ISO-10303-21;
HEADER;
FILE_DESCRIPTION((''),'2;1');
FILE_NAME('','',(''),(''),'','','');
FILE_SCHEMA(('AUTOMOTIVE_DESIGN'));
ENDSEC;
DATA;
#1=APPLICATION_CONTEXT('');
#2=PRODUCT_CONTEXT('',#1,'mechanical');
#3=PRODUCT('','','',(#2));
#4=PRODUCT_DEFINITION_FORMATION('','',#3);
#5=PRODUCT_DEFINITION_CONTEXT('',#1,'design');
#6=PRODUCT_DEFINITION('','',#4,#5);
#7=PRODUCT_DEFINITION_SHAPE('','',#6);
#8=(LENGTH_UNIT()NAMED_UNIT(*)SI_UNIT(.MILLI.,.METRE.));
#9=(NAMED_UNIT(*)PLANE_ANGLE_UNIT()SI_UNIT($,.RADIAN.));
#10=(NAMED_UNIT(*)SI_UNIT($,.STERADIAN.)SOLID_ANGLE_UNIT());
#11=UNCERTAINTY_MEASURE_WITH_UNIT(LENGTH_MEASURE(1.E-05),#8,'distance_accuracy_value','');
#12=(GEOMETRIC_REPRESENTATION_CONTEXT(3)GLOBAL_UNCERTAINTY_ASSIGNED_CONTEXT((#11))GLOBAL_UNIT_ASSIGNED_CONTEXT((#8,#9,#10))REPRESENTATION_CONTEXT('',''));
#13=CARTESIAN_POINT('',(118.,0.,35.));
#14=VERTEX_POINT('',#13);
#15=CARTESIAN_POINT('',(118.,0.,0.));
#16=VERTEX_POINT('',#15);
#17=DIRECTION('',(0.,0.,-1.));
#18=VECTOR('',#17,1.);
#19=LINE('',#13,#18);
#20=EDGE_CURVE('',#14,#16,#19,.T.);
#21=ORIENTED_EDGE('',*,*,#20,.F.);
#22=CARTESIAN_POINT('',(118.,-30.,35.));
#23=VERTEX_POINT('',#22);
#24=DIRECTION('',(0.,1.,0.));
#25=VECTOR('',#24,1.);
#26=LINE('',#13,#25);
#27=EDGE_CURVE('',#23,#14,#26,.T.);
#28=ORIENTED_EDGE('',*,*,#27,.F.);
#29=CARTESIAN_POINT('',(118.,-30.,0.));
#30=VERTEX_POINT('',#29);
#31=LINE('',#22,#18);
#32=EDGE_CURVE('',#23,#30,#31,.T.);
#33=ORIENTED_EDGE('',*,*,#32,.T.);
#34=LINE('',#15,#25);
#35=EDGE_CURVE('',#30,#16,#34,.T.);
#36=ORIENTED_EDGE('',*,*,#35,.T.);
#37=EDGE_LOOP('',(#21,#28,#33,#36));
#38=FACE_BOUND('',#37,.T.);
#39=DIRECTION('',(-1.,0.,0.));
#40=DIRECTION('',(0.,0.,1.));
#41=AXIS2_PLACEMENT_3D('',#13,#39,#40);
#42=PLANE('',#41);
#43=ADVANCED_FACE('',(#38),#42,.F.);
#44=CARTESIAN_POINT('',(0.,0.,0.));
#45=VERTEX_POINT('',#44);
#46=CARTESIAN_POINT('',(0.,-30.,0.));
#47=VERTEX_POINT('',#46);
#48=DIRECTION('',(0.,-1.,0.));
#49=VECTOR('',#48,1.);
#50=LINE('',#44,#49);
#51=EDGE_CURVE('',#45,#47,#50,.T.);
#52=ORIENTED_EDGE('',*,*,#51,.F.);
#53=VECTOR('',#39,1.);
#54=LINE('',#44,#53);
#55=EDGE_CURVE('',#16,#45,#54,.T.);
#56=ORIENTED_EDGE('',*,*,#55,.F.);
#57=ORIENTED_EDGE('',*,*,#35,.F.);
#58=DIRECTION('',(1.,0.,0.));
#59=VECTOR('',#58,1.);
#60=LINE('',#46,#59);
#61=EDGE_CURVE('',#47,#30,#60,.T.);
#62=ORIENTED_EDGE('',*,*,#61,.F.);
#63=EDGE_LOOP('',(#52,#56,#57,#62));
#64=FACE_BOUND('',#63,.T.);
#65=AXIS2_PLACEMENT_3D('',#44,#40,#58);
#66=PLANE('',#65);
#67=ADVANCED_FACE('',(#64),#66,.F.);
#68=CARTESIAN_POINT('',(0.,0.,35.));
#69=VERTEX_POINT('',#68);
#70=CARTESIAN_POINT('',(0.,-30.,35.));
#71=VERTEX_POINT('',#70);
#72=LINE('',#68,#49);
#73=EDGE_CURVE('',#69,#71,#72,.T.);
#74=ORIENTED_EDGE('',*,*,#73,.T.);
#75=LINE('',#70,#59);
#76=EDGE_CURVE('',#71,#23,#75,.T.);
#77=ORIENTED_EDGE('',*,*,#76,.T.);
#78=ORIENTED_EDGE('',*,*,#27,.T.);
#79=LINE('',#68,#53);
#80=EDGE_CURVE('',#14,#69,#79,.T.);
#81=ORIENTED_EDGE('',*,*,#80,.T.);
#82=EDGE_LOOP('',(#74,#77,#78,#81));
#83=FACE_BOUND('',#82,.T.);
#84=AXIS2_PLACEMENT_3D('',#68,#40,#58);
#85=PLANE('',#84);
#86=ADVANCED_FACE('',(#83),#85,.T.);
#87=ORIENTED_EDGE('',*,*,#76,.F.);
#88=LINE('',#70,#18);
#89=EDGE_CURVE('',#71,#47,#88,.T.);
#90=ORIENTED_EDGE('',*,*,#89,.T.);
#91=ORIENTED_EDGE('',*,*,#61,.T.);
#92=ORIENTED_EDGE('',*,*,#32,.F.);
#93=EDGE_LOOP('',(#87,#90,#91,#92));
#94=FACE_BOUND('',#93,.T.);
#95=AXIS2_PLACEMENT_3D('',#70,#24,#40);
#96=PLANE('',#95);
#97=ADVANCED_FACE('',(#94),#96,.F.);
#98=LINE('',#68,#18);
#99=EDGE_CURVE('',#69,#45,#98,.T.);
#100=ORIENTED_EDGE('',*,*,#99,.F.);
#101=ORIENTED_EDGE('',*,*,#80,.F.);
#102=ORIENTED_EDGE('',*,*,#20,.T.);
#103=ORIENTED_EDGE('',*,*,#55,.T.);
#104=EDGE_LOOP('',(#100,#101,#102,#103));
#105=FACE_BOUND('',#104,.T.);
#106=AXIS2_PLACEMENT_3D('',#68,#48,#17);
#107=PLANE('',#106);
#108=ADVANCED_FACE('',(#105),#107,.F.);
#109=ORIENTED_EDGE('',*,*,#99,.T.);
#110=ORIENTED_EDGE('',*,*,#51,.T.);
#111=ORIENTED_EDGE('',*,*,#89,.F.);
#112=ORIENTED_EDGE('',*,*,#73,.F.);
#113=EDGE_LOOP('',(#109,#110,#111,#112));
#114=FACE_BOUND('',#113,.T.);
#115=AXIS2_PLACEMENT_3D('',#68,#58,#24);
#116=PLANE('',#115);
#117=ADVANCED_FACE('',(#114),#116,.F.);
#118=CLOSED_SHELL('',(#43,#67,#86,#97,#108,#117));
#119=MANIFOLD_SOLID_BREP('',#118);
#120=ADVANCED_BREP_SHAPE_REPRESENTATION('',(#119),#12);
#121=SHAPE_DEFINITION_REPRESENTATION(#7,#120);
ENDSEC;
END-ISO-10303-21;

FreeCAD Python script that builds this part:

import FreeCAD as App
import Part
import Sketcher


def add_polygon(sketch, points):
    """Adds a closed chain of lines whose ends are joined by coincident constraints."""
    first, n = sketch.GeometryCount, len(points)
    for a, b in zip(points, points[1:] + points[:1]):
        sketch.addGeometry(Part.LineSegment(App.Vector(*a, 0), App.Vector(*b, 0)), False)
    for i in range(n):
        sketch.addConstraint(Sketcher.Constraint("Coincident", first + i, 2, first + (i + 1) % n, 1))

doc = App.newDocument("Part")
params = doc.addObject("Spreadsheet::Sheet", "Params")
for row, (alias, value) in enumerate([
    ("sketch1_width", "118 mm"),
    ("sketch1_height", "30 mm"),
    ("pad1_length", "35 mm"),
], start=1):
    params.set(f"A{row}", alias)
    params.set(f"B{row}", "=" + value)
    params.setAlias(f"B{row}", alias)

body = doc.addObject("PartDesign::Body", "Body")

# Sketch on XY plane
sketch1 = body.newObject("Sketcher::SketchObject", "Sketch")
sketch1.AttachmentSupport = (doc.getObject("XY_Plane"), [""])
sketch1.MapMode = "FlatFace"
add_polygon(sketch1, [(0, 0), (0, -30), (118, -30), (118, 0)])  # lines 0-3
sketch1.addConstraint([
    Sketcher.Constraint("Vertical", 0),
    Sketcher.Constraint("Horizontal", 1),
    Sketcher.Constraint("Vertical", 2),
    Sketcher.Constraint("Horizontal", 3),
    Sketcher.Constraint("Coincident", 3, 2, -1, 1),
    Sketcher.Constraint("DistanceX", 1, 1, 1, 2, 118.0),
    Sketcher.Constraint("DistanceY", 0, 2, 0, 1, 30.0),
])
sketch1.setExpression("Constraints[9]", "Params.sketch1_width")
sketch1.setExpression("Constraints[10]", "Params.sketch1_height")
pad1 = body.newObject("PartDesign::Pad", "Pad")
pad1.Profile = sketch1
pad1.setExpression("Length", "Params.pad1_length")

doc.recompute()
